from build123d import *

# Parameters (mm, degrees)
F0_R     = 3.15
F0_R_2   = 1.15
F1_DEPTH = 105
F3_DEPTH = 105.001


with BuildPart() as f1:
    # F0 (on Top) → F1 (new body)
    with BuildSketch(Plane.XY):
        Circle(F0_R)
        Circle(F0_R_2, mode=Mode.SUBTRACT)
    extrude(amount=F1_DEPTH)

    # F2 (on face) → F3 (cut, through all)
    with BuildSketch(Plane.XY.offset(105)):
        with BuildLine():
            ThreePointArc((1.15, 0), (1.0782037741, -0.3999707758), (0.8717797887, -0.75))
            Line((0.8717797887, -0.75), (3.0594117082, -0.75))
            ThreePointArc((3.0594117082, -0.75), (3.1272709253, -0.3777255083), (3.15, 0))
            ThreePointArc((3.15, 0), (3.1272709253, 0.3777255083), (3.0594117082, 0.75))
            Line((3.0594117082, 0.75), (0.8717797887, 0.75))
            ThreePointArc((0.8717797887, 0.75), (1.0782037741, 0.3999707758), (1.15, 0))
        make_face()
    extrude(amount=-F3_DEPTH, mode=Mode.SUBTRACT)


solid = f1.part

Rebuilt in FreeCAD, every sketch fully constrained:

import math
import FreeCAD as App
import Part
import Sketcher
from FreeCAD import Vector

doc = App.newDocument("Part")
body = doc.addObject("PartDesign::Body", "Body")

# Sketch on XY plane
sketch1 = body.newObject("Sketcher::SketchObject", "Sketch")
sketch1.AttachmentSupport = (doc.getObject("XY_Plane"), [""])
sketch1.MapMode = "FlatFace"
sketch1.addGeometry([
    Part.Circle(Vector(0, 0, 0), Vector(0, 0, 1), 3.1),
    Part.Circle(Vector(0, 0, 0), Vector(0, 0, 1), 1.1),
], False)
sketch1.addConstraint([
    Sketcher.Constraint("Coincident", 0, 3, -1, 1),
    Sketcher.Constraint("Coincident", 1, 3, -1, 1),
    Sketcher.Constraint("Diameter", 0, 6.3),
    Sketcher.Constraint("Diameter", 1, 2.3),
])
pad1 = body.newObject("PartDesign::Pad", "Pad")
pad1.Profile = sketch1
pad1.Length = 105

# Sketch on XY plane
sketch2 = body.newObject("Sketcher::SketchObject", "Sketch001")
sketch2.AttachmentSupport = (doc.getObject("XY_Plane"), [""])
sketch2.MapMode = "FlatFace"
sketch2.AttachmentOffset = App.Placement(Vector(0, 0, 105), App.Rotation())
sketch2.addGeometry([
    Part.ArcOfCircle(Part.Circle(Vector(0, 0, 0), Vector(0, 0, 1), 1.1), math.radians(-41), math.radians(0)),  # 0
    Part.LineSegment(Vector(0.9, -0.8, 0), Vector(3.1, -0.8, 0)),  # 1
    Part.ArcOfCircle(Part.Circle(Vector(0, 0, 0), Vector(0, 0, 1), 3.2), math.radians(-13.77), math.radians(0)),  # 2
    Part.ArcOfCircle(Part.Circle(Vector(0, 0, 0), Vector(0, 0, 1), 3.2), math.radians(0), math.radians(13.77)),  # 3
    Part.LineSegment(Vector(3.1, 0.8, 0), Vector(0.9, 0.8, 0)),  # 4
    Part.ArcOfCircle(Part.Circle(Vector(0, 0, 0), Vector(0, 0, 1), 1.1), math.radians(0), math.radians(41)),  # 5
], False)
sketch2.addConstraint([
    Sketcher.Constraint("Coincident", 0, 1, 1, 1),
    Sketcher.Constraint("Coincident", 1, 2, 2, 1),
    Sketcher.Constraint("Tangent", 2, 2, 3, 1),
    Sketcher.Constraint("Coincident", 3, 2, 4, 1),
    Sketcher.Constraint("Coincident", 4, 2, 5, 2),
    Sketcher.Constraint("Tangent", 5, 1, 0, 2),
    Sketcher.Constraint("Horizontal", 1),
    Sketcher.Constraint("Horizontal", 4),
    Sketcher.Constraint("Coincident", 0, 3, -1, 1),
    Sketcher.Constraint("Coincident", 2, 3, -1, 1),
    Sketcher.Constraint("Equal", 2, 3),
    Sketcher.Constraint("Equal", 0, 5),
    Sketcher.Constraint("PointOnObject", 2, 2, -1),
    Sketcher.Constraint("PointOnObject", 5, 1, -1),
    Sketcher.Constraint("Vertical", 1, 2, 3, 2),
    Sketcher.Constraint("Radius", 0, 1.15),
    Sketcher.Constraint("Radius", 2, 3.15),
    Sketcher.Constraint("DistanceY", 1, 2, 3, 2, 1.5),
])
pocket1 = body.newObject("PartDesign::Pocket", "Pocket")
pocket1.Profile = sketch2
pocket1.Type = "ThroughAll"

doc.recompute()
